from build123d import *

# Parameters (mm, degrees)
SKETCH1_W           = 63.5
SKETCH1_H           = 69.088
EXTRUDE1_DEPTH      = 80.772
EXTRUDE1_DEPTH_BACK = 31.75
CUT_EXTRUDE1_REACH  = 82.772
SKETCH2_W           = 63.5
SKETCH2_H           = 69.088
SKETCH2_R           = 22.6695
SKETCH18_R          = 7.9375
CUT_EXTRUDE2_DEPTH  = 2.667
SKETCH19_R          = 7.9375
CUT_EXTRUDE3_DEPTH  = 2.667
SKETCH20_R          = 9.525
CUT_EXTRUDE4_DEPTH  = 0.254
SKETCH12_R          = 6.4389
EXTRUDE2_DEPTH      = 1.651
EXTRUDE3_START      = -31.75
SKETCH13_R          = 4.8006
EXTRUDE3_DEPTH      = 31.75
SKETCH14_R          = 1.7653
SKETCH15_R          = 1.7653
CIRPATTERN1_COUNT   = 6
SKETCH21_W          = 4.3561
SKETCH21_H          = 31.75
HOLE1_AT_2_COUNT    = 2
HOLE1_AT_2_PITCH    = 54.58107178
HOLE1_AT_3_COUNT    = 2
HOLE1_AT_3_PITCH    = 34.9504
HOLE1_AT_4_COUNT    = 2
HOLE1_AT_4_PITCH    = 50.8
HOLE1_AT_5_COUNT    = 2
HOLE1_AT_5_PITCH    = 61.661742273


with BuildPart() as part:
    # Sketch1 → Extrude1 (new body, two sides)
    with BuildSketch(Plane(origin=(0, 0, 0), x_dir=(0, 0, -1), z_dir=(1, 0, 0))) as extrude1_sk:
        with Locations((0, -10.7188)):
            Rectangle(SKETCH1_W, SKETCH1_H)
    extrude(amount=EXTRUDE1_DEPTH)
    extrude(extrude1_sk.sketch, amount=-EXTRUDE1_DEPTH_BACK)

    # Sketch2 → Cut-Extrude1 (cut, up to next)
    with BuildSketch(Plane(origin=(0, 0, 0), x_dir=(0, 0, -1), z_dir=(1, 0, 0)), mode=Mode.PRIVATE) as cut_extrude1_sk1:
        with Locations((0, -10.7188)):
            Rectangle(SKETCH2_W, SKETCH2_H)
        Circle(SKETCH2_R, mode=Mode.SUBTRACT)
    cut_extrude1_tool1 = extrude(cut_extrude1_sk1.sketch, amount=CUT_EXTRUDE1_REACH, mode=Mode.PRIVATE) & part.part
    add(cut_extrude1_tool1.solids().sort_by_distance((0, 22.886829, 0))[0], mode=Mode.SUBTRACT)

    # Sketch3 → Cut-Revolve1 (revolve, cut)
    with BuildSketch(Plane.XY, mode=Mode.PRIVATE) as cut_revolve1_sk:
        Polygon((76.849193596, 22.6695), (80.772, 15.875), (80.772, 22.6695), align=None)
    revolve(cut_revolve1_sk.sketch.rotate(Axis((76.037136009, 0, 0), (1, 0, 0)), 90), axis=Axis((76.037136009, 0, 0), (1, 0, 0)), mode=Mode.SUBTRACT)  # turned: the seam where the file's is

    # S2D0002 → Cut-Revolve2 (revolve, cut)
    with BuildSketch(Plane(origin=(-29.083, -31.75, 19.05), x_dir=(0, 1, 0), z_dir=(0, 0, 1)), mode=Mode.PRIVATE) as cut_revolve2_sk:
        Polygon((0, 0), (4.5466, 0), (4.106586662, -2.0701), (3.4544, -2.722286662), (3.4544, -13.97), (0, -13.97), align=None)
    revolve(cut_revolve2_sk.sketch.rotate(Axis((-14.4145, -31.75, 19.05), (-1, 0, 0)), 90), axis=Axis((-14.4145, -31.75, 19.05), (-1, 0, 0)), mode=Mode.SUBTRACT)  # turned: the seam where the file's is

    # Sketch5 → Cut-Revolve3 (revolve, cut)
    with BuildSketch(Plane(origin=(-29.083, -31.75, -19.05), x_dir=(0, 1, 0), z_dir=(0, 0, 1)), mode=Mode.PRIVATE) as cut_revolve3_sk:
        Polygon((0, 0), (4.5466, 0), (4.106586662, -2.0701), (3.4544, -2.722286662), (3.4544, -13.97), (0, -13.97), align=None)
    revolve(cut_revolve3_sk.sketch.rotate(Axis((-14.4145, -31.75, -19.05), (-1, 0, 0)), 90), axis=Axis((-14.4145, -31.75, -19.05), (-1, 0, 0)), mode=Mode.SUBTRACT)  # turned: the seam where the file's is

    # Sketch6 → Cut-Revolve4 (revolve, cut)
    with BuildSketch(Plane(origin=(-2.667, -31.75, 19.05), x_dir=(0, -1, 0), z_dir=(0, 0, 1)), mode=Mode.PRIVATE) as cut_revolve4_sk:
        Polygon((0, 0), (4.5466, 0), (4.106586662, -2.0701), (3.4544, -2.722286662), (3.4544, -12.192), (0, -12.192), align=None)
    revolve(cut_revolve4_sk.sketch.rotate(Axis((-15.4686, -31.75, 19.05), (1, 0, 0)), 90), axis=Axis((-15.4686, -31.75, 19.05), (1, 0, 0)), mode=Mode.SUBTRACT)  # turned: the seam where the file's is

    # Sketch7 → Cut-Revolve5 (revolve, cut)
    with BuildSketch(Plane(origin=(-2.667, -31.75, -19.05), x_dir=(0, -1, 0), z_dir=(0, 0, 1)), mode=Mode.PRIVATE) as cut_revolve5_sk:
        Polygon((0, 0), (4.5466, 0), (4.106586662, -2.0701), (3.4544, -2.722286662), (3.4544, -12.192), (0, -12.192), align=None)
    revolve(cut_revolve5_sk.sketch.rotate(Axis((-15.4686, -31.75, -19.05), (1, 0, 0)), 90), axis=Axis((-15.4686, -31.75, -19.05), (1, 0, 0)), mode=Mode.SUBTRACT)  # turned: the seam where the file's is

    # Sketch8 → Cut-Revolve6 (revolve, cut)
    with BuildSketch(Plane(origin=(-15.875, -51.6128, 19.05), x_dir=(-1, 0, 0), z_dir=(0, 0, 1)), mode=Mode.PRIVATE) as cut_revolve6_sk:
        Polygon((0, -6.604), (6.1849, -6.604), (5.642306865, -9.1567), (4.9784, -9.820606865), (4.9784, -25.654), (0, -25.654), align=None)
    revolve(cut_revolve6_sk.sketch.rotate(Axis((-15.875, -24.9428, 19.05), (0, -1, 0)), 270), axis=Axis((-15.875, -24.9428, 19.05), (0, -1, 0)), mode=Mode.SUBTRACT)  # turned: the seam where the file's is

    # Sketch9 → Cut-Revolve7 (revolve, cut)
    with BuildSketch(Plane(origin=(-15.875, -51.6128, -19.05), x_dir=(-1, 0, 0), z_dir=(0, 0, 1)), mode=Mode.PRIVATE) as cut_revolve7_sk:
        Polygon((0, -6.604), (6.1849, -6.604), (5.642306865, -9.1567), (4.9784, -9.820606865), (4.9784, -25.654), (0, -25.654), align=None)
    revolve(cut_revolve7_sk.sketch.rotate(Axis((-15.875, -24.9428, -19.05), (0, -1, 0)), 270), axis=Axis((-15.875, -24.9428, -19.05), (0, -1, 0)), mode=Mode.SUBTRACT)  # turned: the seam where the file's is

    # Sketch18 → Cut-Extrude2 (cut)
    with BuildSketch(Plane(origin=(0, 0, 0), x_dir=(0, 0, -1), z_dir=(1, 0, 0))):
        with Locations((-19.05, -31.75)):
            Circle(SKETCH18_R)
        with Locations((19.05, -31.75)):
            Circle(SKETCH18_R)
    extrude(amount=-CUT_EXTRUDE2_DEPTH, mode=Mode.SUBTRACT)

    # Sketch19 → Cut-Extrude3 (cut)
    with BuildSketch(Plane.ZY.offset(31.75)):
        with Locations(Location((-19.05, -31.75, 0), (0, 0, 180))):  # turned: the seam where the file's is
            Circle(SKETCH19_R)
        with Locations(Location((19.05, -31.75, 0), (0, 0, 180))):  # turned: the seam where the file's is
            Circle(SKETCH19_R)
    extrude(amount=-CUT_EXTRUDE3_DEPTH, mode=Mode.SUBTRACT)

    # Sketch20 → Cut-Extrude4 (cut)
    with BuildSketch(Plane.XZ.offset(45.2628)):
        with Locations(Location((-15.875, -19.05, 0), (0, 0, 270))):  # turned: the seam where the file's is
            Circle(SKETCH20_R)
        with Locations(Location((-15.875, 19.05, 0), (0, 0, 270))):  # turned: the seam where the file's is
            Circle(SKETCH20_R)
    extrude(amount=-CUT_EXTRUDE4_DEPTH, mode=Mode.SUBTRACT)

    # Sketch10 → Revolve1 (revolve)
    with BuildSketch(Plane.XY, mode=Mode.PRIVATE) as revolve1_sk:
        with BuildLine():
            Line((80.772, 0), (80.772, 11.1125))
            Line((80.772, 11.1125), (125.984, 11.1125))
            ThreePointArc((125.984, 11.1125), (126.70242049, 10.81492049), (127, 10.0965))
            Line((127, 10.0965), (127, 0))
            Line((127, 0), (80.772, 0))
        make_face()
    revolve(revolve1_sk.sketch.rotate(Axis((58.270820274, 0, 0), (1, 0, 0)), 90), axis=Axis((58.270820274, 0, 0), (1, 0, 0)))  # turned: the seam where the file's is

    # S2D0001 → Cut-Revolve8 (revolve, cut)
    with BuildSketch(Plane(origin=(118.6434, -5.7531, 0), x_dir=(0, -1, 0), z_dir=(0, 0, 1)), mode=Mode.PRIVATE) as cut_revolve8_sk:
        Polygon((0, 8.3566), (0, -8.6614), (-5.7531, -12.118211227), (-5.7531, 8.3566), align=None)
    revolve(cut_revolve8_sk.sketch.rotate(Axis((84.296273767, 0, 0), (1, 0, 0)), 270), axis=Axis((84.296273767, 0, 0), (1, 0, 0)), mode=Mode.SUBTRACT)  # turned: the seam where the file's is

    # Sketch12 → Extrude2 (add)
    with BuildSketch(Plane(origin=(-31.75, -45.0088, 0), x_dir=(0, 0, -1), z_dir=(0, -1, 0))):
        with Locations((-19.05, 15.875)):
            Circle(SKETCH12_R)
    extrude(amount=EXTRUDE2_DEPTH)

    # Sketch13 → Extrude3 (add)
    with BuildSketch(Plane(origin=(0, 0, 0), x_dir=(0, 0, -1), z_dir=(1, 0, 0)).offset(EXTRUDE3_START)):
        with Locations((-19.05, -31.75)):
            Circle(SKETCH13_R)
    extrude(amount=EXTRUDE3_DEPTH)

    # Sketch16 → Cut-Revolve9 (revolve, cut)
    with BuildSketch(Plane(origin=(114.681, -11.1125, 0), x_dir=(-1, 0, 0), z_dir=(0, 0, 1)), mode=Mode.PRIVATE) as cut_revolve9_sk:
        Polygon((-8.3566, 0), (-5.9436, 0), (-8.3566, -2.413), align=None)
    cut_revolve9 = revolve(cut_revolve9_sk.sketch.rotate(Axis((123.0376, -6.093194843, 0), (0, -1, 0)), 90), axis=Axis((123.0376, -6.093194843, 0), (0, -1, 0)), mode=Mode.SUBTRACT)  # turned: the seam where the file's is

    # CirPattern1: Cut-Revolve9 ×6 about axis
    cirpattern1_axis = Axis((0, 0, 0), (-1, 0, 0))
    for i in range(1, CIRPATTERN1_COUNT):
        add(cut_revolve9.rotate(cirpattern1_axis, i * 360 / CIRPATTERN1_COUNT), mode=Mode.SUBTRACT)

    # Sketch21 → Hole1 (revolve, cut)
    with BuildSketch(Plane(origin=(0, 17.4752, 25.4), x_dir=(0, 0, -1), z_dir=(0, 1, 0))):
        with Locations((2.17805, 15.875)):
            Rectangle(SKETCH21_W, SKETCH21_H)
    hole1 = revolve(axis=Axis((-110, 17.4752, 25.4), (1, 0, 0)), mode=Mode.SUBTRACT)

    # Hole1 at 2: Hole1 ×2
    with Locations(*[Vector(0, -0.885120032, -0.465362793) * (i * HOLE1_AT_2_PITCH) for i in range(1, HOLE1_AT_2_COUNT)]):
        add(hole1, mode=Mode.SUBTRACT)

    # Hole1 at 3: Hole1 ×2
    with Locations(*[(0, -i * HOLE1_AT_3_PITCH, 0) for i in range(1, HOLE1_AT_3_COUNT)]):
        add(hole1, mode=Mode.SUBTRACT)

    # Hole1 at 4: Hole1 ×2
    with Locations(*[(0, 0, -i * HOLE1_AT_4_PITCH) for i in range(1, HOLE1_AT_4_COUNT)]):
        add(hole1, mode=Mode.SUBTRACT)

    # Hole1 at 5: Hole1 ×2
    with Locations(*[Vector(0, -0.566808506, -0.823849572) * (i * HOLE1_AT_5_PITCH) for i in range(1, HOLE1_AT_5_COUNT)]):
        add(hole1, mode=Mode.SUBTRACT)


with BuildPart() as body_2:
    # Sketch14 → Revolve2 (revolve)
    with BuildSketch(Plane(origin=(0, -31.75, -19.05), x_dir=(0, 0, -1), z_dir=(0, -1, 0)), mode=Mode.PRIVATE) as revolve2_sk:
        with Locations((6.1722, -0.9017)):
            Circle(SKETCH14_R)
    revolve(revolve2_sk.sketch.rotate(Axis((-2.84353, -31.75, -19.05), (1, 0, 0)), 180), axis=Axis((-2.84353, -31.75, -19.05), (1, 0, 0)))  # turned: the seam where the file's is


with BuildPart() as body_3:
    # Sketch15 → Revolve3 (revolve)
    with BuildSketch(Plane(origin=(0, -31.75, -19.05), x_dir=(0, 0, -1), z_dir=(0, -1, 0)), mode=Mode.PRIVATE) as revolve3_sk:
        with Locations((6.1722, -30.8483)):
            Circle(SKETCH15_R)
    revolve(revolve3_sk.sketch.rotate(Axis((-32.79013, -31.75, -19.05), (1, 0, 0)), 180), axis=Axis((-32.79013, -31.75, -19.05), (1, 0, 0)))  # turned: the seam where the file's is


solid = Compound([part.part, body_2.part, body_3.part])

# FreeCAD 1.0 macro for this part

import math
import FreeCAD as App
import Part
import Sketcher

V = App.Vector
Q = App.Units.Quantity


def add_polygon(sketch, points):
    """Adds a closed chain of lines whose ends are joined by coincident constraints."""
    first, n = sketch.GeometryCount, len(points)
    for a, b in zip(points, points[1:] + points[:1]):
        sketch.addGeometry(Part.LineSegment(App.Vector(*a, 0), App.Vector(*b, 0)), False)
    for i in range(n):
        sketch.addConstraint(Sketcher.Constraint("Coincident", first + i, 2, first + (i + 1) % n, 1))

doc = App.newDocument("Part")
body = doc.addObject("PartDesign::Body", "Body")

# Sketch on YZ plane
sketch1 = body.newObject("Sketcher::SketchObject", "Sketch")
sketch1.AttachmentSupport = (doc.getObject("YZ_Plane"), [""])
sketch1.MapMode = "FlatFace"
add_polygon(sketch1, [(24, 32), (-45, 32), (-45, -32), (24, -32)])  # lines 0-3
sketch1.addConstraint(Sketcher.Constraint("Horizontal", 0))
sketch1.addConstraint(Sketcher.Constraint("Vertical", 1))
sketch1.addConstraint(Sketcher.Constraint("Horizontal", 2))
sketch1.addConstraint(Sketcher.Constraint("Vertical", 3))
sketch1.addConstraint(Sketcher.Constraint("DistanceY", 1, 2, 1, 1, Q("2.5 in")))
sketch1.addConstraint(Sketcher.Constraint("DistanceX", 0, 2, 0, 1, Q("2.72 in")))
sketch1.addConstraint(Sketcher.Constraint("DistanceY", -1, 1, 0, 2, Q("1.25 in")))
sketch1.addConstraint(Sketcher.Constraint("DistanceX", 0, 2, -1, 1, Q("1.782 in")))
pad1 = body.newObject("PartDesign::Pad", "Pad")
pad1.Profile = sketch1
pad1.Type = "TwoLengths"
pad1.Length = Q("3.18 in")
pad1.Length2 = Q("1.25 in")

# Sketch on YZ plane
sketch2 = body.newObject("Sketcher::SketchObject", "Sketch001")
sketch2.AttachmentSupport = (doc.getObject("YZ_Plane"), [""])
sketch2.MapMode = "FlatFace"
add_polygon(sketch2, [(24, 32), (-45, 32), (-45, -32), (24, -32)])  # lines 0-3
sketch2.addGeometry(Part.Circle(V(0, 0, 0), V(0, 0, 1), 23), False)  # 4
sketch2.addConstraint(Sketcher.Constraint("Horizontal", 0))
sketch2.addConstraint(Sketcher.Constraint("Vertical", 1))
sketch2.addConstraint(Sketcher.Constraint("Horizontal", 2))
sketch2.addConstraint(Sketcher.Constraint("Vertical", 3))
sketch2.addConstraint(Sketcher.Constraint("Coincident", 4, 3, -1, 1))
sketch2.addConstraint(Sketcher.Constraint("Diameter", 4, Q("1.785 in")))
sketch2.addConstraint(Sketcher.Constraint("DistanceY", 1, 2, 1, 1, Q("2.5 in")))
sketch2.addConstraint(Sketcher.Constraint("DistanceX", 0, 2, 0, 1, Q("2.72 in")))
sketch2.addConstraint(Sketcher.Constraint("DistanceY", -1, 1, 0, 2, Q("1.25 in")))
sketch2.addConstraint(Sketcher.Constraint("DistanceX", 0, 2, -1, 1, Q("1.782 in")))
pocket1 = body.newObject("PartDesign::Pocket", "Pocket")
pocket1.Profile = sketch2
pocket1.Type = "UpToFirst"
pocket1.Reversed = True

# Sketch on XY plane
sketch3 = body.newObject("Sketcher::SketchObject", "Sketch002")
sketch3.AttachmentSupport = (doc.getObject("XY_Plane"), [""])
sketch3.MapMode = "FlatFace"
add_polygon(sketch3, [(76.8, 22.7), (80.8, 15.9), (80.8, 22.7)])  # lines 0-2
sketch3.addConstraint(Sketcher.Constraint("Vertical", 1))
sketch3.addConstraint(Sketcher.Constraint("Horizontal", 2))
sketch3.addConstraint(Sketcher.Constraint("Angle", 0, Q("-60 deg")))
sketch3.addConstraint(Sketcher.Constraint("DistanceX", -1, 1, 0, 2, Q("3.18 in")))
sketch3.addConstraint(Sketcher.Constraint("DistanceY", 1, 1, 1, 2, Q("0.2675 in")))
sketch3.addConstraint(Sketcher.Constraint("DistanceY", -1, 1, 0, 2, Q("0.625 in")))
groove = body.newObject("PartDesign::Groove", "Groove")
groove.Profile = sketch3
groove.ReferenceAxis = (sketch3, ["H_Axis"])
groove.Angle = 360

# Sketch on XY plane
sketch4 = body.newObject("Sketcher::SketchObject", "Sketch003")
sketch4.AttachmentSupport = (doc.getObject("XY_Plane"), [""])
sketch4.MapMode = "FlatFace"
sketch4.AttachmentOffset = App.Placement(V(0, 0, 0.75 * 25.4), App.Rotation())
add_polygon(sketch4, [(-29.1, -27.2), (-29.1, -31.8), (-15.1, -31.8), (-15.1, -28.3), (-26.4, -28.3), (-27, -27.6)])  # lines 0-5
sketch4.addGeometry(Part.LineSegment(V(-15.1, -31.8, 0), V(-29.1, -31.8, 0)), True)  # axis
sketch4.addConstraint(Sketcher.Constraint("Vertical", 0))
sketch4.addConstraint(Sketcher.Constraint("Horizontal", 1))
sketch4.addConstraint(Sketcher.Constraint("Vertical", 2))
sketch4.addConstraint(Sketcher.Constraint("Horizontal", 3))
sketch4.addConstraint(Sketcher.Constraint("Horizontal", 6))
sketch4.addConstraint(Sketcher.Constraint("Coincident", 6, 1, 1, 2))
sketch4.addConstraint(Sketcher.Constraint("Vertical", 5, 2, 6, 2))
sketch4.addConstraint(Sketcher.Constraint("Angle", 4, Q("135 deg")))
sketch4.addConstraint(Sketcher.Constraint("Angle", 5, Q("168 deg")))
sketch4.addConstraint(Sketcher.Constraint("DistanceX", 1, 1, 1, 2, Q("0.55 in")))
sketch4.addConstraint(Sketcher.Constraint("DistanceY", 0, 2, 0, 1, Q("0.179 in")))
sketch4.addConstraint(Sketcher.Constraint("DistanceY", 2, 1, 2, 2, Q("0.136 in")))
sketch4.addConstraint(Sketcher.Constraint("DistanceY", 0, 2, -1, 1, Q("1.25 in")))
sketch4.addConstraint(Sketcher.Constraint("DistanceX", 0, 2, -1, 1, Q("1.145 in")))
sketch4.addConstraint(Sketcher.Constraint("DistanceX", 4, 2, -1, 1, Q("1.0635 in")))
groove2 = body.newObject("PartDesign::Groove", "Groove001")
groove2.Profile = sketch4
groove2.ReferenceAxis = (sketch4, ["Axis0"])
groove2.Angle = 360

# Sketch on XY plane
sketch5 = body.newObject("Sketcher::SketchObject", "Sketch004")
sketch5.AttachmentSupport = (doc.getObject("XY_Plane"), [""])
sketch5.MapMode = "FlatFace"
sketch5.AttachmentOffset = App.Placement(V(0, 0, -0.75 * 25.4), App.Rotation())
add_polygon(sketch5, [(-29.1, -27.2), (-29.1, -31.8), (-15.1, -31.8), (-15.1, -28.3), (-26.4, -28.3), (-27, -27.6)])  # lines 0-5
sketch5.addGeometry(Part.LineSegment(V(-15.1, -31.8, 0), V(-29.1, -31.8, 0)), True)  # axis
sketch5.addConstraint(Sketcher.Constraint("Vertical", 0))
sketch5.addConstraint(Sketcher.Constraint("Horizontal", 1))
sketch5.addConstraint(Sketcher.Constraint("Vertical", 2))
sketch5.addConstraint(Sketcher.Constraint("Horizontal", 3))
sketch5.addConstraint(Sketcher.Constraint("Horizontal", 6))
sketch5.addConstraint(Sketcher.Constraint("Coincident", 6, 1, 1, 2))
sketch5.addConstraint(Sketcher.Constraint("Vertical", 5, 2, 6, 2))
sketch5.addConstraint(Sketcher.Constraint("Angle", 4, Q("135 deg")))
sketch5.addConstraint(Sketcher.Constraint("Angle", 5, Q("168 deg")))
sketch5.addConstraint(Sketcher.Constraint("DistanceX", 1, 1, 1, 2, Q("0.55 in")))
sketch5.addConstraint(Sketcher.Constraint("DistanceY", 0, 2, 0, 1, Q("0.179 in")))
sketch5.addConstraint(Sketcher.Constraint("DistanceY", 2, 1, 2, 2, Q("0.136 in")))
sketch5.addConstraint(Sketcher.Constraint("DistanceY", 0, 2, -1, 1, Q("1.25 in")))
sketch5.addConstraint(Sketcher.Constraint("DistanceX", 0, 2, -1, 1, Q("1.145 in")))
sketch5.addConstraint(Sketcher.Constraint("DistanceX", 4, 2, -1, 1, Q("1.0635 in")))
groove3 = body.newObject("PartDesign::Groove", "Groove002")
groove3.Profile = sketch5
groove3.ReferenceAxis = (sketch5, ["Axis0"])
groove3.Angle = 360

# Sketch on XY plane
sketch6 = body.newObject("Sketcher::SketchObject", "Sketch005")
sketch6.AttachmentSupport = (doc.getObject("XY_Plane"), [""])
sketch6.MapMode = "FlatFace"
sketch6.AttachmentOffset = App.Placement(V(0, 0, 0.75 * 25.4), App.Rotation())
add_polygon(sketch6, [(-2.7, -36.3), (-2.7, -31.8), (-14.9, -31.8), (-14.9, -35.2), (-5.4, -35.2), (-4.7, -35.9)])  # lines 0-5
sketch6.addGeometry(Part.LineSegment(V(-14.9, -31.8, 0), V(-2.7, -31.8, 0)), True)  # axis
sketch6.addConstraint(Sketcher.Constraint("Vertical", 0))
sketch6.addConstraint(Sketcher.Constraint("Horizontal", 1))
sketch6.addConstraint(Sketcher.Constraint("Vertical", 2))
sketch6.addConstraint(Sketcher.Constraint("Horizontal", 3))
sketch6.addConstraint(Sketcher.Constraint("Horizontal", 6))
sketch6.addConstraint(Sketcher.Constraint("Coincident", 6, 1, 1, 2))
sketch6.addConstraint(Sketcher.Constraint("Vertical", 5, 2, 6, 2))
sketch6.addConstraint(Sketcher.Constraint("Angle", 4, Q("-45 deg")))
sketch6.addConstraint(Sketcher.Constraint("Angle", 5, Q("-12 deg")))
sketch6.addConstraint(Sketcher.Constraint("DistanceX", 1, 2, 1, 1, Q("0.48 in")))
sketch6.addConstraint(Sketcher.Constraint("DistanceY", 0, 1, 0, 2, Q("0.179 in")))
sketch6.addConstraint(Sketcher.Constraint("DistanceY", 2, 2, 2, 1, Q("0.136 in")))
sketch6.addConstraint(Sketcher.Constraint("DistanceY", 0, 2, -1, 1, Q("1.25 in")))
sketch6.addConstraint(Sketcher.Constraint("DistanceX", 0, 2, -1, 1, Q("0.105 in")))
sketch6.addConstraint(Sketcher.Constraint("DistanceX", 4, 2, -1, 1, Q("0.1865 in")))
groove4 = body.newObject("PartDesign::Groove", "Groove003")
groove4.Profile = sketch6
groove4.ReferenceAxis = (sketch6, ["Axis0"])
groove4.Angle = 360

# Sketch on XY plane
sketch7 = body.newObject("Sketcher::SketchObject", "Sketch006")
sketch7.AttachmentSupport = (doc.getObject("XY_Plane"), [""])
sketch7.MapMode = "FlatFace"
sketch7.AttachmentOffset = App.Placement(V(0, 0, -0.75 * 25.4), App.Rotation())
add_polygon(sketch7, [(-2.7, -36.3), (-2.7, -31.8), (-14.9, -31.8), (-14.9, -35.2), (-5.4, -35.2), (-4.7, -35.9)])  # lines 0-5
sketch7.addGeometry(Part.LineSegment(V(-14.9, -31.8, 0), V(-2.7, -31.8, 0)), True)  # axis
sketch7.addConstraint(Sketcher.Constraint("Vertical", 0))
sketch7.addConstraint(Sketcher.Constraint("Horizontal", 1))
sketch7.addConstraint(Sketcher.Constraint("Vertical", 2))
sketch7.addConstraint(Sketcher.Constraint("Horizontal", 3))
sketch7.addConstraint(Sketcher.Constraint("Horizontal", 6))
sketch7.addConstraint(Sketcher.Constraint("Coincident", 6, 1, 1, 2))
sketch7.addConstraint(Sketcher.Constraint("Vertical", 5, 2, 6, 2))
sketch7.addConstraint(Sketcher.Constraint("Angle", 4, Q("-45 deg")))
sketch7.addConstraint(Sketcher.Constraint("Angle", 5, Q("-12 deg")))
sketch7.addConstraint(Sketcher.Constraint("DistanceX", 1, 2, 1, 1, Q("0.48 in")))
sketch7.addConstraint(Sketcher.Constraint("DistanceY", 0, 1, 0, 2, Q("0.179 in")))
sketch7.addConstraint(Sketcher.Constraint("DistanceY", 2, 2, 2, 1, Q("0.136 in")))
sketch7.addConstraint(Sketcher.Constraint("DistanceY", 0, 2, -1, 1, Q("1.25 in")))
sketch7.addConstraint(Sketcher.Constraint("DistanceX", 0, 2, -1, 1, Q("0.105 in")))
sketch7.addConstraint(Sketcher.Constraint("DistanceX", 4, 2, -1, 1, Q("0.1865 in")))
groove5 = body.newObject("PartDesign::Groove", "Groove004")
groove5.Profile = sketch7
groove5.ReferenceAxis = (sketch7, ["Axis0"])
groove5.Angle = 360

# Sketch on XY plane
sketch8 = body.newObject("Sketcher::SketchObject", "Sketch007")
sketch8.AttachmentSupport = (doc.getObject("XY_Plane"), [""])
sketch8.MapMode = "FlatFace"
sketch8.AttachmentOffset = App.Placement(V(0, 0, 0.75 * 25.4), App.Rotation())
add_polygon(sketch8, [(-22.1, -45), (-15.9, -45), (-15.9, -26), (-20.9, -26), (-20.9, -41.8), (-21.5, -42.5)])  # lines 0-5
sketch8.addGeometry(Part.LineSegment(V(-15.9, -26, 0), V(-15.9, -45, 0)), True)  # axis
sketch8.addConstraint(Sketcher.Constraint("Horizontal", 0))
sketch8.addConstraint(Sketcher.Constraint("Vertical", 1))
sketch8.addConstraint(Sketcher.Constraint("Horizontal", 2))
sketch8.addConstraint(Sketcher.Constraint("Vertical", 3))
sketch8.addConstraint(Sketcher.Constraint("Vertical", 6))
sketch8.addConstraint(Sketcher.Constraint("Coincident", 6, 1, 1, 2))
sketch8.addConstraint(Sketcher.Constraint("Horizontal", 5, 2, 6, 2))
sketch8.addConstraint(Sketcher.Constraint("Angle", 4, Q("-135 deg")))
sketch8.addConstraint(Sketcher.Constraint("Angle", 5, Q("-102 deg")))
sketch8.addConstraint(Sketcher.Constraint("DistanceY", 1, 1, 1, 2, Q("0.75 in")))
sketch8.addConstraint(Sketcher.Constraint("DistanceX", 2, 2, 2, 1, Q("0.196 in")))
sketch8.addConstraint(Sketcher.Constraint("DistanceX", 0, 1, 0, 2, Q("0.2435 in")))
sketch8.addConstraint(Sketcher.Constraint("DistanceX", 0, 2, -1, 1, Q("0.625 in")))
sketch8.addConstraint(Sketcher.Constraint("DistanceY", 0, 2, -1, 1, Q("1.772 in")))
sketch8.addConstraint(Sketcher.Constraint("DistanceY", 4, 2, -1, 1, Q("1.6715 in")))
groove6 = body.newObject("PartDesign::Groove", "Groove005")
groove6.Profile = sketch8
groove6.ReferenceAxis = (sketch8, ["Axis0"])
groove6.Angle = 360

# Sketch on XY plane
sketch9 = body.newObject("Sketcher::SketchObject", "Sketch008")
sketch9.AttachmentSupport = (doc.getObject("XY_Plane"), [""])
sketch9.MapMode = "FlatFace"
sketch9.AttachmentOffset = App.Placement(V(0, 0, -0.75 * 25.4), App.Rotation())
add_polygon(sketch9, [(-22.1, -45), (-15.9, -45), (-15.9, -26), (-20.9, -26), (-20.9, -41.8), (-21.5, -42.5)])  # lines 0-5
sketch9.addGeometry(Part.LineSegment(V(-15.9, -26, 0), V(-15.9, -45, 0)), True)  # axis
sketch9.addConstraint(Sketcher.Constraint("Horizontal", 0))
sketch9.addConstraint(Sketcher.Constraint("Vertical", 1))
sketch9.addConstraint(Sketcher.Constraint("Horizontal", 2))
sketch9.addConstraint(Sketcher.Constraint("Vertical", 3))
sketch9.addConstraint(Sketcher.Constraint("Vertical", 6))
sketch9.addConstraint(Sketcher.Constraint("Coincident", 6, 1, 1, 2))
sketch9.addConstraint(Sketcher.Constraint("Horizontal", 5, 2, 6, 2))
sketch9.addConstraint(Sketcher.Constraint("Angle", 4, Q("-135 deg")))
sketch9.addConstraint(Sketcher.Constraint("Angle", 5, Q("-102 deg")))
sketch9.addConstraint(Sketcher.Constraint("DistanceY", 1, 1, 1, 2, Q("0.75 in")))
sketch9.addConstraint(Sketcher.Constraint("DistanceX", 2, 2, 2, 1, Q("0.196 in")))
sketch9.addConstraint(Sketcher.Constraint("DistanceX", 0, 1, 0, 2, Q("0.2435 in")))
sketch9.addConstraint(Sketcher.Constraint("DistanceX", 0, 2, -1, 1, Q("0.625 in")))
sketch9.addConstraint(Sketcher.Constraint("DistanceY", 0, 2, -1, 1, Q("1.772 in")))
sketch9.addConstraint(Sketcher.Constraint("DistanceY", 4, 2, -1, 1, Q("1.6715 in")))
groove7 = body.newObject("PartDesign::Groove", "Groove006")
groove7.Profile = sketch9
groove7.ReferenceAxis = (sketch9, ["Axis0"])
groove7.Angle = 360

# Sketch on YZ plane
sketch10 = body.newObject("Sketcher::SketchObject", "Sketch009")
sketch10.AttachmentSupport = (doc.getObject("YZ_Plane"), [""])
sketch10.MapMode = "FlatFace"
sketch10.addGeometry(Part.Circle(V(-32, 19, 0), V(0, 0, 1), 8), False)
sketch10.addGeometry(Part.Circle(V(-32, -19, 0), V(0, 0, 1), 8), False)
sketch10.addConstraint(Sketcher.Constraint("Equal", 0, 1))
sketch10.addConstraint(Sketcher.Constraint("Symmetric", 0, 3, 1, 3, -1))
sketch10.addConstraint(Sketcher.Constraint("Diameter", 0, Q("0.625 in")))
sketch10.addConstraint(Sketcher.Constraint("DistanceY", 1, 3, 0, 3, Q("1.5 in")))
sketch10.addConstraint(Sketcher.Constraint("DistanceX", 0, 3, -1, 1, Q("1.25 in")))
pocket2 = body.newObject("PartDesign::Pocket", "Pocket001")
pocket2.Profile = sketch10
pocket2.Length = Q("0.105 in")

# Sketch on YZ plane
sketch11 = body.newObject("Sketcher::SketchObject", "Sketch010")
sketch11.AttachmentSupport = (doc.getObject("YZ_Plane"), [""])
sketch11.MapMode = "FlatFace"
sketch11.AttachmentOffset = App.Placement(V(0, 0, -1.25 * 25.4), App.Rotation())
sketch11.addGeometry(Part.Circle(V(-32, -19, 0), V(0, 0, 1), 8), False)
sketch11.addGeometry(Part.Circle(V(-32, 19, 0), V(0, 0, 1), 8), False)
sketch11.addConstraint(Sketcher.Constraint("Equal", 0, 1))
sketch11.addConstraint(Sketcher.Constraint("Symmetric", 0, 3, 1, 3, -1))
sketch11.addConstraint(Sketcher.Constraint("Diameter", 0, Q("0.625 in")))
sketch11.addConstraint(Sketcher.Constraint("DistanceY", 0, 3, 1, 3, Q("1.5 in")))
sketch11.addConstraint(Sketcher.Constraint("DistanceX", 0, 3, -1, 1, Q("1.25 in")))
pocket3 = body.newObject("PartDesign::Pocket", "Pocket002")
pocket3.Profile = sketch11
pocket3.Length = Q("0.105 in")
pocket3.Reversed = True

# Sketch on XZ plane
sketch12 = body.newObject("Sketcher::SketchObject", "Sketch011")
sketch12.AttachmentSupport = (doc.getObject("XZ_Plane"), [""])
sketch12.MapMode = "FlatFace"
sketch12.AttachmentOffset = App.Placement(V(0, 0, 1.782 * 25.4), App.Rotation())
sketch12.addGeometry(Part.Circle(V(-16, -19, 0), V(0, 0, 1), 10), False)
sketch12.addGeometry(Part.Circle(V(-16, 19, 0), V(0, 0, 1), 10), False)
sketch12.addConstraint(Sketcher.Constraint("Equal", 0, 1))
sketch12.addConstraint(Sketcher.Constraint("Symmetric", 0, 3, 1, 3, -1))
sketch12.addConstraint(Sketcher.Constraint("Diameter", 0, Q("0.75 in")))
sketch12.addConstraint(Sketcher.Constraint("DistanceY", 0, 3, 1, 3, Q("1.5 in")))
sketch12.addConstraint(Sketcher.Constraint("DistanceX", 0, 3, -1, 1, Q("0.625 in")))
pocket4 = body.newObject("PartDesign::Pocket", "Pocket003")
pocket4.Profile = sketch12
pocket4.Length = Q("0.01 in")

# Sketch on XY plane
sketch13 = body.newObject("Sketcher::SketchObject", "Sketch012")
sketch13.AttachmentSupport = (doc.getObject("XY_Plane"), [""])
sketch13.MapMode = "FlatFace"
sketch13.addGeometry(Part.LineSegment(V(80.8, 11.1, 0), V(80.8, 0, 0)), False)
sketch13.addGeometry(Part.LineSegment(V(80.8, 0, 0), V(127, 0, 0)), False)
sketch13.addGeometry(Part.LineSegment(V(127, 0, 0), V(127, 10.1, 0)), False)
sketch13.addGeometry(Part.ArcOfCircle(Part.Circle(V(126, 10.1, 0), V(0, 0, 1), 1), math.radians(0), math.radians(90)), False)
sketch13.addGeometry(Part.LineSegment(V(126, 11.1, 0), V(80.8, 11.1, 0)), False)
sketch13.addConstraint(Sketcher.Constraint("Coincident", 0, 2, 1, 1))
sketch13.addConstraint(Sketcher.Constraint("Coincident", 1, 2, 2, 1))
sketch13.addConstraint(Sketcher.Constraint("Tangent", 2, 2, 3, 1))
sketch13.addConstraint(Sketcher.Constraint("Tangent", 3, 2, 4, 1))
sketch13.addConstraint(Sketcher.Constraint("Coincident", 4, 2, 0, 1))
sketch13.addConstraint(Sketcher.Constraint("Vertical", 0))
sketch13.addConstraint(Sketcher.Constraint("Horizontal", 1))
sketch13.addConstraint(Sketcher.Constraint("Vertical", 2))
sketch13.addConstraint(Sketcher.Constraint("Horizontal", 4))
sketch13.addConstraint(Sketcher.Constraint("PointOnObject", 0, 2, -1))
sketch13.addConstraint(Sketcher.Constraint("Radius", 3, Q("0.04 in")))
sketch13.addConstraint(Sketcher.Constraint("DistanceX", -1, 1, 1, 2, Q("5 in")))
sketch13.addConstraint(Sketcher.Constraint("DistanceX", 1, 1, 1, 2, Q("1.82 in")))
sketch13.addConstraint(Sketcher.Constraint("DistanceY", 0, 2, 0, 1, Q("0.4375 in")))
revolution = body.newObject("PartDesign::Revolution", "Revolution")
revolution.Profile = sketch13
revolution.ReferenceAxis = (sketch13, ["H_Axis"])
revolution.Angle = 360

# Sketch on XY plane
sketch14 = body.newObject("Sketcher::SketchObject", "Sketch013")
sketch14.AttachmentSupport = (doc.getObject("XY_Plane"), [""])
sketch14.MapMode = "FlatFace"
add_polygon(sketch14, [(110, -6), (127, -6), (127, 0), (107, 0)])  # lines 0-3
sketch14.addConstraint(Sketcher.Constraint("Horizontal", 0))
sketch14.addConstraint(Sketcher.Constraint("Vertical", 1))
sketch14.addConstraint(Sketcher.Constraint("Horizontal", 2))
sketch14.addConstraint(Sketcher.Constraint("PointOnObject", 1, 2, -1))
sketch14.addConstraint(Sketcher.Constraint("DistanceX", -1, 1, 0, 2, Q("5 in")))
sketch14.addConstraint(Sketcher.Constraint("Angle", 3, Q("-59 deg")))
sketch14.addConstraint(Sketcher.Constraint("DistanceX", 0, 1, 0, 2, Q("0.67 in")))
sketch14.addConstraint(Sketcher.Constraint("DistanceY", 1, 1, 1, 2, Q("0.2265 in")))
groove8 = body.newObject("PartDesign::Groove", "Groove007")
groove8.Profile = sketch14
groove8.ReferenceAxis = (sketch14, ["H_Axis"])
groove8.Angle = 360

# Sketch on XZ plane
sketch15 = body.newObject("Sketcher::SketchObject", "Sketch014")
sketch15.AttachmentSupport = (doc.getObject("XZ_Plane"), [""])
sketch15.MapMode = "FlatFace"
sketch15.AttachmentOffset = App.Placement(V(0, 0, 1.772 * 25.4), App.Rotation())
sketch15.addGeometry(Part.Circle(V(-16, 19, 0), V(0, 0, 1), 6), False)
sketch15.addConstraint(Sketcher.Constraint("Diameter", 0, Q("0.507 in")))
sketch15.addConstraint(Sketcher.Constraint("DistanceY", -1, 1, 0, 3, Q("0.75 in")))
sketch15.addConstraint(Sketcher.Constraint("DistanceX", 0, 3, -1, 1, Q("0.625 in")))
pad2 = body.newObject("PartDesign::Pad", "Pad001")
pad2.Profile = sketch15
pad2.Length = Q("0.065 in")

# Sketch on YZ plane
sketch16 = body.newObject("Sketcher::SketchObject", "Sketch015")
sketch16.AttachmentSupport = (doc.getObject("YZ_Plane"), [""])
sketch16.MapMode = "FlatFace"
sketch16.AttachmentOffset = App.Placement(V(0, 0, -1.25 * 25.4), App.Rotation())
sketch16.addGeometry(Part.Circle(V(-31.8, 19.1, 0), V(0, 0, 1), 4.8), False)
sketch16.addConstraint(Sketcher.Constraint("Diameter", 0, Q("0.378 in")))
sketch16.addConstraint(Sketcher.Constraint("DistanceX", 0, 3, -1, 1, Q("1.25 in")))
sketch16.addConstraint(Sketcher.Constraint("DistanceY", -1, 1, 0, 3, Q("0.75 in")))
pad3 = body.newObject("PartDesign::Pad", "Pad002")
pad3.Profile = sketch16
pad3.Length = Q("1.25 in")

# Sketch on XY plane
sketch17 = body.newObject("Sketcher::SketchObject", "Sketch016")
sketch17.AttachmentSupport = (doc.getObject("XY_Plane"), [""])
sketch17.MapMode = "FlatFace"
add_polygon(sketch17, [(120.6, -11.1), (123, -11.1), (123, -8.7)])  # lines 0-2
sketch17.addGeometry(Part.LineSegment(V(123, -8.7, 0), V(123, -11.1, 0)), True)  # axis
sketch17.addConstraint(Sketcher.Constraint("Horizontal", 0))
sketch17.addConstraint(Sketcher.Constraint("Vertical", 1))
sketch17.addConstraint(Sketcher.Constraint("Vertical", 3))
sketch17.addConstraint(Sketcher.Constraint("Coincident", 3, 1, 1, 2))
sketch17.addConstraint(Sketcher.Constraint("Horizontal", 2, 2, 3, 2))
sketch17.addConstraint(Sketcher.Constraint("Equal", 0, 1))
sketch17.addConstraint(Sketcher.Constraint("DistanceX", 0, 1, 0, 2, Q("0.095 in")))
sketch17.addConstraint(Sketcher.Constraint("DistanceX", -1, 1, 0, 2, Q("4.844 in")))
sketch17.addConstraint(Sketcher.Constraint("DistanceY", 0, 2, -1, 1, Q("0.4375 in")))
groove9 = body.newObject("PartDesign::Groove", "Groove008")
groove9.Profile = sketch17
groove9.ReferenceAxis = (sketch17, ["Axis0"])
groove9.Angle = 360
doc.recompute()

polarpattern = body.newObject("PartDesign::PolarPattern", "PolarPattern")
polarpattern.Originals = [groove9]
polarpattern.Axis = (doc.getObject("X_Axis"), [""])
polarpattern.Angle = 360
polarpattern.Occurrences = 6
body.Tip = polarpattern

# Sketch on XZ plane
sketch18 = body.newObject("Sketcher::SketchObject", "Sketch017")
sketch18.AttachmentSupport = (doc.getObject("XZ_Plane"), [""])
sketch18.MapMode = "FlatFace"
sketch18.AttachmentOffset = App.Placement(V(0, 0, -0.688 * 25.4), App.Rotation())
add_polygon(sketch18, [(-31.8, 25.4), (0, 25.4), (0, 21), (-31.8, 21)])  # lines 0-3
sketch18.addGeometry(Part.LineSegment(V(-31.8, 25.4, 0), V(0, 25.4, 0)), True)  # axis
sketch18.addConstraint(Sketcher.Constraint("Horizontal", 0))
sketch18.addConstraint(Sketcher.Constraint("Vertical", 1))
sketch18.addConstraint(Sketcher.Constraint("Horizontal", 2))
sketch18.addConstraint(Sketcher.Constraint("Vertical", 3))
sketch18.addConstraint(Sketcher.Constraint("Horizontal", 4))
sketch18.addConstraint(Sketcher.Constraint("Coincident", 4, 1, 3, 2))
sketch18.addConstraint(Sketcher.Constraint("PointOnObject", 0, 2, -2))
sketch18.addConstraint(Sketcher.Constraint("PointOnObject", 4, 2, -2))
sketch18.addConstraint(Sketcher.Constraint("DistanceY", -1, 1, 0, 2, Q("1 in")))
sketch18.addConstraint(Sketcher.Constraint("DistanceX", 0, 1, 0, 2, Q("1.25 in")))
sketch18.addConstraint(Sketcher.Constraint("DistanceY", 1, 2, 1, 1, Q("0.1715 in")))
groove10 = body.newObject("PartDesign::Groove", "Groove009")
groove10.Profile = sketch18
groove10.ReferenceAxis = (sketch18, ["Axis0"])
groove10.Angle = 360
doc.recompute()

datumline = body.newObject("PartDesign::Line", "DatumLine")
datumline.Placement = App.Placement(V(0, 0, 0), App.Rotation(V(0, 0, 1), V(0, -0.885120032, -0.465362793)))
linearpattern = body.newObject("PartDesign::LinearPattern", "LinearPattern")
linearpattern.Originals = [groove10]
linearpattern.Direction = (datumline, [""])
linearpattern.Mode = "offset"
linearpattern.Offset = 54.581072
linearpattern.Occurrences = 2
body.Tip = linearpattern
doc.recompute()

linearpattern2 = body.newObject("PartDesign::LinearPattern", "LinearPattern001")
linearpattern2.Originals = [groove10]
linearpattern2.Direction = (doc.getObject("Y_Axis"), [""])
linearpattern2.Mode = "offset"
linearpattern2.Offset = Q("1.376 in")
linearpattern2.Occurrences = 2
linearpattern2.Reversed = True
body.Tip = linearpattern2
doc.recompute()

linearpattern3 = body.newObject("PartDesign::LinearPattern", "LinearPattern002")
linearpattern3.Originals = [groove10]
linearpattern3.Direction = (doc.getObject("Z_Axis"), [""])
linearpattern3.Mode = "offset"
linearpattern3.Offset = Q("2 in")
linearpattern3.Occurrences = 2
linearpattern3.Reversed = True
body.Tip = linearpattern3
doc.recompute()

datumline2 = body.newObject("PartDesign::Line", "DatumLine001")
datumline2.Placement = App.Placement(V(0, 0, 0), App.Rotation(V(0, 0, 1), V(0, -0.566808506, -0.823849572)))
linearpattern4 = body.newObject("PartDesign::LinearPattern", "LinearPattern003")
linearpattern4.Originals = [groove10]
linearpattern4.Direction = (datumline2, [""])
linearpattern4.Mode = "offset"
linearpattern4.Offset = 61.661742
linearpattern4.Occurrences = 2
body.Tip = linearpattern4
body2 = doc.addObject("PartDesign::Body", "Body001")

# Sketch on XZ plane
sketch19 = body2.newObject("Sketcher::SketchObject", "Sketch018")
sketch19.AttachmentSupport = (doc.getObject("XZ_Plane001"), [""])
sketch19.MapMode = "FlatFace"
sketch19.AttachmentOffset = App.Placement(V(0, 0, 1.25 * 25.4), App.Rotation())
sketch19.addGeometry(Part.Circle(V(-0.9, -25.2, 0), V(0, 0, 1), 1.8), False)
sketch19.addGeometry(Part.LineSegment(V(-0.9, -19.1, 0), V(9.1, -19.1, 0)), True)  # axis
sketch19.addConstraint(Sketcher.Constraint("Horizontal", 1))
sketch19.addConstraint(Sketcher.Constraint("Vertical", 0, 3, 1, 1))
sketch19.addConstraint(Sketcher.Constraint("Diameter", 0, Q("0.139 in")))
sketch19.addConstraint(Sketcher.Constraint("DistanceY", 1, 1, -1, 1, Q("0.75 in")))
sketch19.addConstraint(Sketcher.Constraint("DistanceY", 0, 3, -1, 1, Q("0.993 in")))
sketch19.addConstraint(Sketcher.Constraint("DistanceX", 1, 1, 1, 2, 10.0))
sketch19.addConstraint(Sketcher.Constraint("DistanceX", 0, 3, -1, 1, Q("0.0355 in")))
revolution2 = body2.newObject("PartDesign::Revolution", "Revolution001")
revolution2.Profile = sketch19
revolution2.ReferenceAxis = (sketch19, ["Axis0"])
revolution2.Angle = 360
body3 = doc.addObject("PartDesign::Body", "Body002")

# Sketch on XZ plane
sketch20 = body3.newObject("Sketcher::SketchObject", "Sketch019")
sketch20.AttachmentSupport = (doc.getObject("XZ_Plane002"), [""])
sketch20.MapMode = "FlatFace"
sketch20.AttachmentOffset = App.Placement(V(0, 0, 1.25 * 25.4), App.Rotation())
sketch20.addGeometry(Part.Circle(V(-30.8, -25.2, 0), V(0, 0, 1), 1.8), False)
sketch20.addGeometry(Part.LineSegment(V(-30.8, -19.1, 0), V(-20.8, -19.1, 0)), True)  # axis
sketch20.addConstraint(Sketcher.Constraint("Horizontal", 1))
sketch20.addConstraint(Sketcher.Constraint("Vertical", 0, 3, 1, 1))
sketch20.addConstraint(Sketcher.Constraint("Diameter", 0, Q("0.139 in")))
sketch20.addConstraint(Sketcher.Constraint("DistanceY", 1, 1, -1, 1, Q("0.75 in")))
sketch20.addConstraint(Sketcher.Constraint("DistanceY", 0, 3, -1, 1, Q("0.993 in")))
sketch20.addConstraint(Sketcher.Constraint("DistanceX", 1, 1, 1, 2, 10.0))
sketch20.addConstraint(Sketcher.Constraint("DistanceX", 0, 3, -1, 1, Q("1.2145 in")))
revolution3 = body3.newObject("PartDesign::Revolution", "Revolution002")
revolution3.Profile = sketch20
revolution3.ReferenceAxis = (sketch20, ["Axis0"])
revolution3.Angle = 360

doc.recompute()
